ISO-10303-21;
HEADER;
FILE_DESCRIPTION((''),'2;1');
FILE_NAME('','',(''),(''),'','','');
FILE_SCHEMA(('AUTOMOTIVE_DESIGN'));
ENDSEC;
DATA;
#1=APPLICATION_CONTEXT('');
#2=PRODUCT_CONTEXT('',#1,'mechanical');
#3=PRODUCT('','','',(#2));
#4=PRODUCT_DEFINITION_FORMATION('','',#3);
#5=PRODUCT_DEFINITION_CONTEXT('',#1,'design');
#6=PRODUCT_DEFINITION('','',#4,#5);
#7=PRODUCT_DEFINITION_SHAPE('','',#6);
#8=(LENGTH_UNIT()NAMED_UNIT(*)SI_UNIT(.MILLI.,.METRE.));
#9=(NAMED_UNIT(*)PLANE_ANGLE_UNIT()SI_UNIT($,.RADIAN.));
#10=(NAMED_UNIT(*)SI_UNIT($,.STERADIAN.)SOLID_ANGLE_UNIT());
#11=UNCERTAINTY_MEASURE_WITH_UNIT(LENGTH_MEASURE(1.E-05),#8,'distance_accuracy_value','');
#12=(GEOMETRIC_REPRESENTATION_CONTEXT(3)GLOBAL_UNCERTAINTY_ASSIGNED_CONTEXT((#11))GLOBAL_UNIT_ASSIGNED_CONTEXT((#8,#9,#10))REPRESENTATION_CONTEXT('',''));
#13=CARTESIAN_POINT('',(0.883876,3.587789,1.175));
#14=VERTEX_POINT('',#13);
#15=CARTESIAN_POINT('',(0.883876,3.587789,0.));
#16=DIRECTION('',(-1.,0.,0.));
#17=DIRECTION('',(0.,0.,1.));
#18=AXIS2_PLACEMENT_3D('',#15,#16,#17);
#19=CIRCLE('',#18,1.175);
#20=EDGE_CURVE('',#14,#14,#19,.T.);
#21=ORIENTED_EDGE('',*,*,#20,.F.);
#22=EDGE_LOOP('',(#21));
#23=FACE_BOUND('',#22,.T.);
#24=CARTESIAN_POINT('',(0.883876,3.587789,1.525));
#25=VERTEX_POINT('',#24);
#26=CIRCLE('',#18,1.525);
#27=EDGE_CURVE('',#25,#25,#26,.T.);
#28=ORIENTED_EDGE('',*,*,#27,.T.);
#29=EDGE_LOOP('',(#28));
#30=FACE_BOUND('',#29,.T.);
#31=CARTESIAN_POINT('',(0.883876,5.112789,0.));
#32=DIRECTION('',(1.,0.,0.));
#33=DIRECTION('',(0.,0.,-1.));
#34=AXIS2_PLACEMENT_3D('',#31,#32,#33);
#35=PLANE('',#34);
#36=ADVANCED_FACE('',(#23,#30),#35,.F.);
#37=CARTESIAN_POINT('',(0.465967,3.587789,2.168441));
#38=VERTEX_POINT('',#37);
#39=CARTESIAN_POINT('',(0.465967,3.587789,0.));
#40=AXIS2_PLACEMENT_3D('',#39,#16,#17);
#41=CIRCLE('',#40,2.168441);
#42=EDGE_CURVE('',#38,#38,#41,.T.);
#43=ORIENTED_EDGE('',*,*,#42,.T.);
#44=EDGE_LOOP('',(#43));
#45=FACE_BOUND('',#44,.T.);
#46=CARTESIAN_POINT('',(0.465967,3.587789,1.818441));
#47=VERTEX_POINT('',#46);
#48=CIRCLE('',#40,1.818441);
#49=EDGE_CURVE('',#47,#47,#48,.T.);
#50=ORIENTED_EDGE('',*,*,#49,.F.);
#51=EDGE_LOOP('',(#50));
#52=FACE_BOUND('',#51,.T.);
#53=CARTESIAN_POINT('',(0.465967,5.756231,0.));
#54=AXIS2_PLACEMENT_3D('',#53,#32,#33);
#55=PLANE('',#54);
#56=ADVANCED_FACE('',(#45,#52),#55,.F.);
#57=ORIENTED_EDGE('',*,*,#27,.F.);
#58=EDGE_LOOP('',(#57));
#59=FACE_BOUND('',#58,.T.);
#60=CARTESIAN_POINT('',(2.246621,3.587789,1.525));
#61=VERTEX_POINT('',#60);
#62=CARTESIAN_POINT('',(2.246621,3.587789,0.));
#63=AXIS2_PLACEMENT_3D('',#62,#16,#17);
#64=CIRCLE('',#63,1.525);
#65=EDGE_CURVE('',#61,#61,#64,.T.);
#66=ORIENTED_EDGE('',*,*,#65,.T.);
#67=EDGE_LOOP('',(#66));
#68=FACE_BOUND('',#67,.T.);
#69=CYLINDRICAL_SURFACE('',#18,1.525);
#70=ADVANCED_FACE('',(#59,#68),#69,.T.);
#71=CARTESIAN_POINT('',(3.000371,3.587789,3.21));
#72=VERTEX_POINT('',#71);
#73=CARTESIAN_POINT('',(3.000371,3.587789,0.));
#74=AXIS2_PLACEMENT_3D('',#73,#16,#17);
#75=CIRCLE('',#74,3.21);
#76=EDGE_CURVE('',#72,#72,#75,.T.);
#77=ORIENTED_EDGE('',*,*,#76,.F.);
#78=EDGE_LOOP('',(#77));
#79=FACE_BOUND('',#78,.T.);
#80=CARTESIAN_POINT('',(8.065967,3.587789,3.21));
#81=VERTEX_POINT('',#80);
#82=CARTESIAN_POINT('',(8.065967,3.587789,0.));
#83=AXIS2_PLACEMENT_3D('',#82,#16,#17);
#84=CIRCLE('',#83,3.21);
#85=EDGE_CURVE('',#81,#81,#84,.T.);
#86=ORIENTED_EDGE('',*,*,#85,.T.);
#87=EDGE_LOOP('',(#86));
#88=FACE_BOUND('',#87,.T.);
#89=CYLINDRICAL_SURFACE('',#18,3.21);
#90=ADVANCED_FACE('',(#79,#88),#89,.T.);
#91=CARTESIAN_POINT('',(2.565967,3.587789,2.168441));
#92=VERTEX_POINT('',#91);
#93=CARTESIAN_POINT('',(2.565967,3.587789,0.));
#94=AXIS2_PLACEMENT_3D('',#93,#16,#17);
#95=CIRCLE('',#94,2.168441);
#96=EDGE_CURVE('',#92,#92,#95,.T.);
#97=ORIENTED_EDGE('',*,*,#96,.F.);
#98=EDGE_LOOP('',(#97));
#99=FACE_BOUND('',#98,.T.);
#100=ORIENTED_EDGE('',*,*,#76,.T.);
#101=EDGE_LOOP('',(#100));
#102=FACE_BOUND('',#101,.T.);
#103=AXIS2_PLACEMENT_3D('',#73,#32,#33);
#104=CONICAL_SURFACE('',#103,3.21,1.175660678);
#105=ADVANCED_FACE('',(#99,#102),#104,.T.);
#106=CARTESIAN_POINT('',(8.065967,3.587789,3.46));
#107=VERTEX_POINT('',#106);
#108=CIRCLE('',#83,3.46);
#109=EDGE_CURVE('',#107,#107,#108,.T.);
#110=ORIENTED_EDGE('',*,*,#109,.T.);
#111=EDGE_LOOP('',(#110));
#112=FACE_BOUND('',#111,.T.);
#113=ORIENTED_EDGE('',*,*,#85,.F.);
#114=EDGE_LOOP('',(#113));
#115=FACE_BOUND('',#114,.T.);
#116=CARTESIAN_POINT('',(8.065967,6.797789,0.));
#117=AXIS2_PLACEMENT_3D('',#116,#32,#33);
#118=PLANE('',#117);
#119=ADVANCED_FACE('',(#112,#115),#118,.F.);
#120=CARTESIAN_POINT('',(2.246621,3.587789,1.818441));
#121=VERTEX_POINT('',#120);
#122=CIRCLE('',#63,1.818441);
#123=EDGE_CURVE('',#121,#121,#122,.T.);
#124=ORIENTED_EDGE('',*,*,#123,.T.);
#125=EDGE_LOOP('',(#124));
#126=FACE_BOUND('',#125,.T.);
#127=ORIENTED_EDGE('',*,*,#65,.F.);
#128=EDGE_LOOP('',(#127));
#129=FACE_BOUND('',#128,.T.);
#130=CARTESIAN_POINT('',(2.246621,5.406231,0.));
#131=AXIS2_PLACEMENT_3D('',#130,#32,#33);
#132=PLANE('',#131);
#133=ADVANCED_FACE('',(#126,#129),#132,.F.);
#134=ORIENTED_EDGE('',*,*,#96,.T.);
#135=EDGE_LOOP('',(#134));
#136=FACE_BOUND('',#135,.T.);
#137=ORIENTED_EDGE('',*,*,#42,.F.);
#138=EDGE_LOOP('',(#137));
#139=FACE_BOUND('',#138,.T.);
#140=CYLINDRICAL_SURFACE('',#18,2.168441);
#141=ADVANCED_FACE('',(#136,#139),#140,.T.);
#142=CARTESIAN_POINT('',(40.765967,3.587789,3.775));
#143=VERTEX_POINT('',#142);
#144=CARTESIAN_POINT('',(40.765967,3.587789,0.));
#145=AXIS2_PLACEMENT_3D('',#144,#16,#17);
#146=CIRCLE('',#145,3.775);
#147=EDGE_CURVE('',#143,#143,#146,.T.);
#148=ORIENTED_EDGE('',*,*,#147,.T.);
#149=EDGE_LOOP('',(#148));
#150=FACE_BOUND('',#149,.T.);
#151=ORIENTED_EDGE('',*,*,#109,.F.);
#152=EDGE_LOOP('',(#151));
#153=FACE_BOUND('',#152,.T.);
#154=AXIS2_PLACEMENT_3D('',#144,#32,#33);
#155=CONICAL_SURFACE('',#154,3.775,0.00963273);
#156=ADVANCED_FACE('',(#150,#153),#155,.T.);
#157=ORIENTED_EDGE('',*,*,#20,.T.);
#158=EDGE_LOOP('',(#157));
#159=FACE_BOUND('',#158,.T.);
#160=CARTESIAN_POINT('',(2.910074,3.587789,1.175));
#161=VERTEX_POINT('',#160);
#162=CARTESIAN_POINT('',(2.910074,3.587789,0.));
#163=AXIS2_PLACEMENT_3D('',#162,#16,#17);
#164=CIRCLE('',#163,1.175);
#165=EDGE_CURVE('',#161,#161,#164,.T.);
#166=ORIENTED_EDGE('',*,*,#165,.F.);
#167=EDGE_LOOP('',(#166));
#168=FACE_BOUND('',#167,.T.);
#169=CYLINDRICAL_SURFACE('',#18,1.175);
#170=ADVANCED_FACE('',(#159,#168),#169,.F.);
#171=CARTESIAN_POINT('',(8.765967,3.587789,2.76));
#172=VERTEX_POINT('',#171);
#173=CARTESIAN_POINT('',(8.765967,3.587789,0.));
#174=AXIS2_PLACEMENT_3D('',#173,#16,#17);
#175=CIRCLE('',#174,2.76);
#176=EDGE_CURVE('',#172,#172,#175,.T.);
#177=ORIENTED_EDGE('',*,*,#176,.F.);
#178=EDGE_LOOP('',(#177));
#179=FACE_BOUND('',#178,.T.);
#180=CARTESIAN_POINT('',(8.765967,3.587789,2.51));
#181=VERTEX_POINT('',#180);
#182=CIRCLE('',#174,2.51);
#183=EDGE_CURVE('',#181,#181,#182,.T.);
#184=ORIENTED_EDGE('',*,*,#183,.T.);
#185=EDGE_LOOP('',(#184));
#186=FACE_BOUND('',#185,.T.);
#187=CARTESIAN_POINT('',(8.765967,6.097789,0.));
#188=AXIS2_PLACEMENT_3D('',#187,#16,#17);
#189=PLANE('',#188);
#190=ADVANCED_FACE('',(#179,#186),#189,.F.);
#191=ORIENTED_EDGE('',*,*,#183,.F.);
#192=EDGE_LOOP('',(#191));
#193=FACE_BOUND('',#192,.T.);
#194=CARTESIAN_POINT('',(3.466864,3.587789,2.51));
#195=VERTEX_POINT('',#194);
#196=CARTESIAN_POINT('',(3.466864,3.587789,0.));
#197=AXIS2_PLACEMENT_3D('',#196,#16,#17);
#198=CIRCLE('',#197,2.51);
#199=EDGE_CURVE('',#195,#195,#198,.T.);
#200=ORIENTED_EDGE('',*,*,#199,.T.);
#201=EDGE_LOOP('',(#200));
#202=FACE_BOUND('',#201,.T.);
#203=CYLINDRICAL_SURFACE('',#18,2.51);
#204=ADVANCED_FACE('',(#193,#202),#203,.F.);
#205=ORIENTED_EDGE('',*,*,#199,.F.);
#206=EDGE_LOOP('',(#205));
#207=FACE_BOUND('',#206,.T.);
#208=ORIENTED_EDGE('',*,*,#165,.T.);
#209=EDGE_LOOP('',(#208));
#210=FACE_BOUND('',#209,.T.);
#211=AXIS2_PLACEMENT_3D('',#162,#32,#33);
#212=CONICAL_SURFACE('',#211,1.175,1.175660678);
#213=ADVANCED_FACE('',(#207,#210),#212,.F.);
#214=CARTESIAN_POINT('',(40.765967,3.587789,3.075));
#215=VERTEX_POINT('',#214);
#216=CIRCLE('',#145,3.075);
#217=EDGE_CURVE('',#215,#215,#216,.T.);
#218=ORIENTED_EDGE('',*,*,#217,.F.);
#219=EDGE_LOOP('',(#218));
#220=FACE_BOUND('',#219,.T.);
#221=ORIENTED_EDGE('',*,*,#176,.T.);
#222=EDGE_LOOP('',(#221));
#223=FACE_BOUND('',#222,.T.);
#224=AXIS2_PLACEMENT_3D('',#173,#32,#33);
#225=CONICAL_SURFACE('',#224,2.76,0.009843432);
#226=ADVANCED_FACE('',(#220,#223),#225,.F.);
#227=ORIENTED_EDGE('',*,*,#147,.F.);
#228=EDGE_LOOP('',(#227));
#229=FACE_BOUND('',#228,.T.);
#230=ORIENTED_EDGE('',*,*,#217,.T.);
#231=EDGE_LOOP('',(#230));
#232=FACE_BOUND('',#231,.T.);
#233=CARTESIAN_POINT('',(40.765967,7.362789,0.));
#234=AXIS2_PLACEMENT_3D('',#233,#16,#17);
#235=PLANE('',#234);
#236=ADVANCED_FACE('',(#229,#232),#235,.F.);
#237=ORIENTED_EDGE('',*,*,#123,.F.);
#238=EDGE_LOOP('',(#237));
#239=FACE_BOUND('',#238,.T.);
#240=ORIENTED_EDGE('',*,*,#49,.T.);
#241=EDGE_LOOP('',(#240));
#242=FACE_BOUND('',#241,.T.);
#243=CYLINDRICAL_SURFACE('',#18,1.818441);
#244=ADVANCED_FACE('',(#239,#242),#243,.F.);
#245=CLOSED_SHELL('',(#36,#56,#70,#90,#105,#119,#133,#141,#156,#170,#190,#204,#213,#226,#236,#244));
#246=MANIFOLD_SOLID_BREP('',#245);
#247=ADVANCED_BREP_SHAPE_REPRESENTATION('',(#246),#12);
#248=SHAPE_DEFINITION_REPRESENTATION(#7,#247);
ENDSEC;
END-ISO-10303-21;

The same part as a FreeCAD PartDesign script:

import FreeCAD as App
import Part
import Sketcher

V = App.Vector
Q = App.Units.Quantity

doc = App.newDocument("Part")
body = doc.addObject("PartDesign::Body", "Body")

sketch1 = body.newObject("Sketcher::SketchObject", "Sketch")
sketch1.AttachmentSupport = (doc.getObject("XY_Plane"), [""])
sketch1.MapMode = "FlatFace"
sketch1.addGeometry(Part.LineSegment(V(2.57, 5.76, 0), V(0.47, 5.76, 0)), False)
sketch1.addGeometry(Part.LineSegment(V(0.47, 5.76, 0), V(0.47, 5.41, 0)), False)
sketch1.addGeometry(Part.LineSegment(V(0.47, 5.41, 0), V(2.25, 5.41, 0)), False)
sketch1.addGeometry(Part.LineSegment(V(2.25, 5.41, 0), V(2.25, 5.11, 0)), False)
sketch1.addGeometry(Part.LineSegment(V(2.25, 5.11, 0), V(0.88, 5.11, 0)), False)
sketch1.addGeometry(Part.LineSegment(V(0.88, 5.11, 0), V(0.88, 4.76, 0)), False)
sketch1.addGeometry(Part.LineSegment(V(0.88, 4.76, 0), V(2.91, 4.76, 0)), False)
sketch1.addGeometry(Part.LineSegment(V(2.91, 4.76, 0), V(3.47, 6.1, 0)), False)
sketch1.addGeometry(Part.LineSegment(V(3.47, 6.1, 0), V(8.77, 6.1, 0)), False)
sketch1.addGeometry(Part.LineSegment(V(8.77, 6.1, 0), V(8.77, 6.35, 0)), False)
sketch1.addGeometry(Part.LineSegment(V(8.77, 6.35, 0), V(40.77, 6.66, 0)), False)
sketch1.addGeometry(Part.LineSegment(V(40.77, 6.66, 0), V(40.77, 7.36, 0)), False)
sketch1.addGeometry(Part.LineSegment(V(40.77, 7.36, 0), V(8.07, 7.05, 0)), False)
sketch1.addGeometry(Part.LineSegment(V(8.07, 7.05, 0), V(8.07, 6.8, 0)), False)
sketch1.addGeometry(Part.LineSegment(V(8.07, 6.8, 0), V(3, 6.8, 0)), False)
sketch1.addGeometry(Part.LineSegment(V(3, 6.8, 0), V(2.57, 5.76, 0)), False)
sketch1.addGeometry(Part.LineSegment(V(0.47, 3.59, 0), V(40.77, 3.59, 0)), True)
sketch1.addConstraint(Sketcher.Constraint("Coincident", 0, 2, 1, 1))
sketch1.addConstraint(Sketcher.Constraint("Coincident", 1, 2, 2, 1))
sketch1.addConstraint(Sketcher.Constraint("Coincident", 2, 2, 3, 1))
sketch1.addConstraint(Sketcher.Constraint("Coincident", 3, 2, 4, 1))
sketch1.addConstraint(Sketcher.Constraint("Coincident", 4, 2, 5, 1))
sketch1.addConstraint(Sketcher.Constraint("Coincident", 5, 2, 6, 1))
sketch1.addConstraint(Sketcher.Constraint("Coincident", 6, 2, 7, 1))
sketch1.addConstraint(Sketcher.Constraint("Coincident", 7, 2, 8, 1))
sketch1.addConstraint(Sketcher.Constraint("Coincident", 8, 2, 9, 1))
sketch1.addConstraint(Sketcher.Constraint("Coincident", 9, 2, 10, 1))
sketch1.addConstraint(Sketcher.Constraint("Coincident", 10, 2, 11, 1))
sketch1.addConstraint(Sketcher.Constraint("Coincident", 11, 2, 12, 1))
sketch1.addConstraint(Sketcher.Constraint("Coincident", 12, 2, 13, 1))
sketch1.addConstraint(Sketcher.Constraint("Coincident", 13, 2, 14, 1))
sketch1.addConstraint(Sketcher.Constraint("Coincident", 14, 2, 15, 1))
sketch1.addConstraint(Sketcher.Constraint("Coincident", 15, 2, 0, 1))
sketch1.addConstraint(Sketcher.Constraint("Horizontal", 0))
sketch1.addConstraint(Sketcher.Constraint("Vertical", 1))
sketch1.addConstraint(Sketcher.Constraint("Horizontal", 2))
sketch1.addConstraint(Sketcher.Constraint("Vertical", 3))
sketch1.addConstraint(Sketcher.Constraint("Horizontal", 4))
sketch1.addConstraint(Sketcher.Constraint("Vertical", 5))
sketch1.addConstraint(Sketcher.Constraint("Horizontal", 6))
sketch1.addConstraint(Sketcher.Constraint("Horizontal", 8))
sketch1.addConstraint(Sketcher.Constraint("Vertical", 9))
sketch1.addConstraint(Sketcher.Constraint("Vertical", 11))
sketch1.addConstraint(Sketcher.Constraint("Vertical", 13))
sketch1.addConstraint(Sketcher.Constraint("Horizontal", 14))
sketch1.addConstraint(Sketcher.Constraint("Horizontal", 16))
sketch1.addConstraint(Sketcher.Constraint("Parallel", 7, 15))
sketch1.addConstraint(Sketcher.Constraint("Vertical", 1, 2, 16, 1))
sketch1.addConstraint(Sketcher.Constraint("Vertical", 11, 2, 16, 2))
sketch1.addConstraint(Sketcher.Constraint("Equal", 1, 5))
sketch1.addConstraint(Sketcher.Constraint("Equal", 9, 13))
sketch1.addConstraint(Sketcher.Constraint("DistanceX", 0, 2, 0, 1, Q("2.1 mm")))
sketch1.addConstraint(Sketcher.Constraint("DistanceX", 16, 1, 16, 2, Q("40.3 mm")))
sketch1.addConstraint(Sketcher.Constraint("DistanceY", 11, 1, 11, 2, Q("0.7 mm")))
sketch1.addConstraint(Sketcher.Constraint("DistanceX", 9, 2, 10, 2, Q("32 mm")))
sketch1.addConstraint(Sketcher.Constraint("DistanceY", 1, 2, 1, 1, Q("0.35 mm")))
sketch1.addConstraint(Sketcher.Constraint("DistanceY", 9, 1, 9, 2, Q("0.25 mm")))
sketch1.addConstraint(Sketcher.Constraint("DistanceY", 6, 2, 10, 2, Q("1.9 mm")))
sketch1.addConstraint(Sketcher.Constraint("DistanceX", 12, 2, 9, 2, Q("0.7 mm")))
sketch1.addConstraint(Sketcher.Constraint("DistanceY", 9, 2, 12, 2, Q("0.7 mm")))
sketch1.addConstraint(Sketcher.Constraint("DistanceY", 16, 2, 8, 2, Q("2.51 mm")))
sketch1.addConstraint(Sketcher.Constraint("DistanceX", 6, 1, 6, 2, Q("2.026198 mm")))
sketch1.addConstraint(Sketcher.Constraint("DistanceY", 6, 2, 7, 2, Q("1.335 mm")))
sketch1.addConstraint(Sketcher.Constraint("DistanceY", 3, 2, 3, 1, Q("0.293441 mm")))
sketch1.addConstraint(Sketcher.Constraint("DistanceX", 2, 1, 2, 2, Q("1.780654 mm")))
sketch1.addConstraint(Sketcher.Constraint("DistanceX", 4, 2, 4, 1, Q("1.362745 mm")))
sketch1.addConstraint(Sketcher.Constraint("DistanceX", 8, 1, 8, 2, Q("5.299104 mm")))
sketch1.addConstraint(Sketcher.Constraint("DistanceY", -1, 1, 0, 2, Q("5.756231 mm")))
sketch1.addConstraint(Sketcher.Constraint("DistanceX", -1, 1, 2, 2, Q("2.246621 mm")))
revolution = body.newObject("PartDesign::Revolution", "Revolution")
revolution.Profile = sketch1
revolution.ReferenceAxis = (sketch1, ["Axis0"])
revolution.Angle = 360

doc.recompute()
